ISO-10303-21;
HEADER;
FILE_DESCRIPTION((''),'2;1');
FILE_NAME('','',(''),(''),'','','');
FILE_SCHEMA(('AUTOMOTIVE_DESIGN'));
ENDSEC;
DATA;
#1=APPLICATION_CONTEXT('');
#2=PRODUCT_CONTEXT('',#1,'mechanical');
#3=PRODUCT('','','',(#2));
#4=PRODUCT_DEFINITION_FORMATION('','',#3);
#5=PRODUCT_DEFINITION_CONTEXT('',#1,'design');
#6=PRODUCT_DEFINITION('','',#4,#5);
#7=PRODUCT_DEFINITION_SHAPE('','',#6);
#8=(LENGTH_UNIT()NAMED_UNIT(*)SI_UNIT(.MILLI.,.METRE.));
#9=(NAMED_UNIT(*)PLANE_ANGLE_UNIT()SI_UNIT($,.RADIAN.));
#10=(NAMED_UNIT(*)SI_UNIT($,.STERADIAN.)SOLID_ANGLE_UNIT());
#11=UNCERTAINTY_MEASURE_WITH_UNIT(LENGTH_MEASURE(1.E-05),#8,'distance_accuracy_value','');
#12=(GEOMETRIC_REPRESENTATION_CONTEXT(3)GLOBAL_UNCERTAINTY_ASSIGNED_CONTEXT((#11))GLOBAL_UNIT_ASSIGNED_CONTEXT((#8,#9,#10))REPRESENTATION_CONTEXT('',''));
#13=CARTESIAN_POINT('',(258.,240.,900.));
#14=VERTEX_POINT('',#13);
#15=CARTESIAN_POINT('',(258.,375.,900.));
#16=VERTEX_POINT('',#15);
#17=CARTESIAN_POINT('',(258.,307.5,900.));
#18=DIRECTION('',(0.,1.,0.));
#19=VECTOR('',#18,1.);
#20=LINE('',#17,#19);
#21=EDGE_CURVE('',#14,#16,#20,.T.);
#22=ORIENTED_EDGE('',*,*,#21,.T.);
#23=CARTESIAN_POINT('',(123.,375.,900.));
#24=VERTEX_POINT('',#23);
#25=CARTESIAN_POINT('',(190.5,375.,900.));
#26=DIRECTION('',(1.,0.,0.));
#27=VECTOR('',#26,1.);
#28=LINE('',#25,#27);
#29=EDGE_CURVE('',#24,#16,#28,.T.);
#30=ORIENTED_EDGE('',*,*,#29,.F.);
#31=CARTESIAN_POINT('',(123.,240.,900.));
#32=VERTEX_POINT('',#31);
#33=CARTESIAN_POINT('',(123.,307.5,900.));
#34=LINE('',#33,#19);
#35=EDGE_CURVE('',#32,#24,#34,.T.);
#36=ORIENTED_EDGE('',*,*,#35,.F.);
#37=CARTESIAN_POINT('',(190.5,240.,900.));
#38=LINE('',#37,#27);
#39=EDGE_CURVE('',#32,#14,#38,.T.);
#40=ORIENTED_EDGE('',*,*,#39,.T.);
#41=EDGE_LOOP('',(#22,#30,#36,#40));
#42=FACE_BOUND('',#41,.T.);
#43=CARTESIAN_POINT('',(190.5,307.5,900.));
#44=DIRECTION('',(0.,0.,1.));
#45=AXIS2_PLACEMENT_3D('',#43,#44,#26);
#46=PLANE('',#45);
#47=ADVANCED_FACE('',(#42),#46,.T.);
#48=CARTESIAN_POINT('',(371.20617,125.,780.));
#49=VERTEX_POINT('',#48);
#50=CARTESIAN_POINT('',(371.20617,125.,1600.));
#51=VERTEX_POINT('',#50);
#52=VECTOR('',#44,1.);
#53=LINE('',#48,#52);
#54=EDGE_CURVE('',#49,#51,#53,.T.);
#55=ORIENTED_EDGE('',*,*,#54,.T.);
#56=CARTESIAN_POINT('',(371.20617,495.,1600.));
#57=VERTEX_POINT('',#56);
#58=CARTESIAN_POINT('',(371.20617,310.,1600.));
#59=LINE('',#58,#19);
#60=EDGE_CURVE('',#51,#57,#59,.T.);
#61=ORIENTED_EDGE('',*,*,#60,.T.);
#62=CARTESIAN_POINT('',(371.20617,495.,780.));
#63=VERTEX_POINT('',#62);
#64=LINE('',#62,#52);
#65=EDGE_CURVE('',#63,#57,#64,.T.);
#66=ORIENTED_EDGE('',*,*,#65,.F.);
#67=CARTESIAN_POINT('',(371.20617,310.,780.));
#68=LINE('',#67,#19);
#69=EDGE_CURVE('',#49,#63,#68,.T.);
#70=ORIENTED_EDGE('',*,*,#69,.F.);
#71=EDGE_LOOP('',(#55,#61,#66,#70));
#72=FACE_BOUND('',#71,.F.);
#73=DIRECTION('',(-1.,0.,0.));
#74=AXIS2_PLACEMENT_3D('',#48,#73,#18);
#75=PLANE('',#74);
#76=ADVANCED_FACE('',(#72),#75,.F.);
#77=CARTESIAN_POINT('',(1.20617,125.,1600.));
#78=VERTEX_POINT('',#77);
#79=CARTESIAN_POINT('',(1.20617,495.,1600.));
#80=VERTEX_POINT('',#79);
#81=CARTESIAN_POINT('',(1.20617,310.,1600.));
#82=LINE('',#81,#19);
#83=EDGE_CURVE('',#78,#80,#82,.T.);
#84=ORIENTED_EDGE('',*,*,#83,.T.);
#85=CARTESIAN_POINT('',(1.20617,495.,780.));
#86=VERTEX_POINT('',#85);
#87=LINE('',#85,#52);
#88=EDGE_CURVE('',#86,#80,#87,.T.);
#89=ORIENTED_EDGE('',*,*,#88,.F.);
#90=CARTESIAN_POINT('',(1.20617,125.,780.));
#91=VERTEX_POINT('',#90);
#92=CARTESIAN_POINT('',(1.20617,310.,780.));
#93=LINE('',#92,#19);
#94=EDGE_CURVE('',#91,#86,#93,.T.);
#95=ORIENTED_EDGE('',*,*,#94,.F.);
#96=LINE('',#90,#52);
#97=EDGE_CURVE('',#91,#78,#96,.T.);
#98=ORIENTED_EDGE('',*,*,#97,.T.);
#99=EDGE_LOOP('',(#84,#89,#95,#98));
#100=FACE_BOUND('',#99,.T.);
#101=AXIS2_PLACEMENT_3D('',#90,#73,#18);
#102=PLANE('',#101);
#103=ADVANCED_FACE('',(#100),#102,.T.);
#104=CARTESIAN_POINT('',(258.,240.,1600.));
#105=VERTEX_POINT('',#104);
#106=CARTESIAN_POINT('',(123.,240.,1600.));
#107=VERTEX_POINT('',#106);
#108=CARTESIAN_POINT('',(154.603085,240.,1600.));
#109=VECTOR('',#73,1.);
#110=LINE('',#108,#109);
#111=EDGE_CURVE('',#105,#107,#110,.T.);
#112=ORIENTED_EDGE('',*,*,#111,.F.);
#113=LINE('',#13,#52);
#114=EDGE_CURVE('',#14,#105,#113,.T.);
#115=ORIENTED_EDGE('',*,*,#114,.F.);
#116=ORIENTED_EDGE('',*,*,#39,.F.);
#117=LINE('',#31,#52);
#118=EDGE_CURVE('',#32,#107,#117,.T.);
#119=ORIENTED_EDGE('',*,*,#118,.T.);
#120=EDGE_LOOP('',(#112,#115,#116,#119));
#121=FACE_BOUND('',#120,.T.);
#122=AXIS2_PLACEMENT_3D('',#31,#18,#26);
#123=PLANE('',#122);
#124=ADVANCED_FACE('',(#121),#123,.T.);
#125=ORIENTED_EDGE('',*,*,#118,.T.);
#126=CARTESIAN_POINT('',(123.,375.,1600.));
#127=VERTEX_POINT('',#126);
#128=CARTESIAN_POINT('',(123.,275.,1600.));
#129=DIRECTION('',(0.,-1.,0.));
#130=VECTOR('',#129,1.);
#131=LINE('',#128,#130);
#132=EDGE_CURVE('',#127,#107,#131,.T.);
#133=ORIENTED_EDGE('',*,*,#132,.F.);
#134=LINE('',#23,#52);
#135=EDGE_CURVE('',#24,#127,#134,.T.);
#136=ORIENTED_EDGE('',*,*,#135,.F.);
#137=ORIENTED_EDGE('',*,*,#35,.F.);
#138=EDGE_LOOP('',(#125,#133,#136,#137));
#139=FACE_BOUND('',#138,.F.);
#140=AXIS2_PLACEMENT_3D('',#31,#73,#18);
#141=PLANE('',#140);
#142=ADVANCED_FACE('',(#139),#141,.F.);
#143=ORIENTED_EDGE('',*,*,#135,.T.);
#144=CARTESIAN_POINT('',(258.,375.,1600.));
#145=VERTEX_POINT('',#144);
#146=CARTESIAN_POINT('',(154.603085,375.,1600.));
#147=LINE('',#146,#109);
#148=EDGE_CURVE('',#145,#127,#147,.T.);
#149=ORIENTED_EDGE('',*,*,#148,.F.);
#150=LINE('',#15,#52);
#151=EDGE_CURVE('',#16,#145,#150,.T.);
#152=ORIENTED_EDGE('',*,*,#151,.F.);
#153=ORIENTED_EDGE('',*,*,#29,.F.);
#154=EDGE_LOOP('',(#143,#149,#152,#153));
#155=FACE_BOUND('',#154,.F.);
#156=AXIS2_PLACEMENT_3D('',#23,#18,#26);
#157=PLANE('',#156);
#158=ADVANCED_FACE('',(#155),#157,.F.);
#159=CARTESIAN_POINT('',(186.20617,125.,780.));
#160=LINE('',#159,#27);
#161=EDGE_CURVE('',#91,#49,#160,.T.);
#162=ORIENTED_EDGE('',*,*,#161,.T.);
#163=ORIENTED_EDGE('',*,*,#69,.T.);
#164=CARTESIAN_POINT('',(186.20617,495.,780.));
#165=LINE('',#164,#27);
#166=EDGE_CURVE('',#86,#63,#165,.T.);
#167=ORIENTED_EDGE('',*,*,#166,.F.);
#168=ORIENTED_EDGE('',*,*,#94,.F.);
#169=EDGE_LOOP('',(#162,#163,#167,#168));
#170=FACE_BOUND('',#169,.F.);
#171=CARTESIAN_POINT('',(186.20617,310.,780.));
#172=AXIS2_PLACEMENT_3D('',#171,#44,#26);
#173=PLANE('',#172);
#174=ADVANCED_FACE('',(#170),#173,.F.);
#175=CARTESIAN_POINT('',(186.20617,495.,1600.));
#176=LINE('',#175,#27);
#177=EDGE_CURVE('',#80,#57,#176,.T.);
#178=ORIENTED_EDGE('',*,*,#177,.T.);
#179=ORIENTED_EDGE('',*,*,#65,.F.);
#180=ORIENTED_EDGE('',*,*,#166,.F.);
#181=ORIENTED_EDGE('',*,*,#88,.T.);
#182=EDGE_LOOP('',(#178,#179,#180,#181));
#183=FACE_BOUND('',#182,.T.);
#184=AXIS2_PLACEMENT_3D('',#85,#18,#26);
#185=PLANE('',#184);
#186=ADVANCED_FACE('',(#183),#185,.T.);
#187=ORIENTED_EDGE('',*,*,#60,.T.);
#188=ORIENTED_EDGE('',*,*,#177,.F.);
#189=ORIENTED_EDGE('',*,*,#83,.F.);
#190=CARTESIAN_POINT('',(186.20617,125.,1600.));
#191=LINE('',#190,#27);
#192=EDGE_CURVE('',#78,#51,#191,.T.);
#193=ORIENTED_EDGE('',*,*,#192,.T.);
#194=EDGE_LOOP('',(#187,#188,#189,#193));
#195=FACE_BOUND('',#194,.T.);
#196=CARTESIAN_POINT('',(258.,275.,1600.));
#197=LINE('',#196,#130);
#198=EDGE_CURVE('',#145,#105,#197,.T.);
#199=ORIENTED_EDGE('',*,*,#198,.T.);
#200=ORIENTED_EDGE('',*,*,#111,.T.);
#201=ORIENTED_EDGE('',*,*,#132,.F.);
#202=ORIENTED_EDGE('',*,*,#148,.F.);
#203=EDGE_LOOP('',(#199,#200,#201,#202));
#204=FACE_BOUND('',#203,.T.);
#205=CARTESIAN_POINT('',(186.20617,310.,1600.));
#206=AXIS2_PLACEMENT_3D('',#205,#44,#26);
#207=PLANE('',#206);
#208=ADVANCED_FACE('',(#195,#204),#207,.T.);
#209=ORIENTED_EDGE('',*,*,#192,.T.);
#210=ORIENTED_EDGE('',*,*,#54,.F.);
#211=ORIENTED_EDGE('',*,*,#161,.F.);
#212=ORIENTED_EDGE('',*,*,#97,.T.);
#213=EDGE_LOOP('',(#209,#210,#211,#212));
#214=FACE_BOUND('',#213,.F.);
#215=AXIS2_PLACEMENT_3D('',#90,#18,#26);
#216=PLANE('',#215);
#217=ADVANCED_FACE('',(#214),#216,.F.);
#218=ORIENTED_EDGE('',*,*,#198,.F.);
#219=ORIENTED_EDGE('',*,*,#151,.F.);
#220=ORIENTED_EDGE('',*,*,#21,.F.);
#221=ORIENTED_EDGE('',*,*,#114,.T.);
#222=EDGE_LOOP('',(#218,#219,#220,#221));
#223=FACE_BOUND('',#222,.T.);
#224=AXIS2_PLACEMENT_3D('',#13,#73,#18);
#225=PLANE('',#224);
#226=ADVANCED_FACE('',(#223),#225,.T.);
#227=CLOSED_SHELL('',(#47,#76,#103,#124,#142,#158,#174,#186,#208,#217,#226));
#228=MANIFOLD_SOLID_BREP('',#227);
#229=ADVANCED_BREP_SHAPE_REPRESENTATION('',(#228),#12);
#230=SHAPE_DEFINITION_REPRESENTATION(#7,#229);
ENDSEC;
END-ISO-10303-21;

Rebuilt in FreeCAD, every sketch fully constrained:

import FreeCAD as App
import Part
import Sketcher

V = App.Vector
Q = App.Units.Quantity

doc = App.newDocument("Part")
params = doc.addObject("Spreadsheet::Sheet", "Params")
for row, (alias, value) in enumerate([
    ("sketch1_width", "135 mm"),
    ("pad1_length", "1000 mm"),
    ("sketch2_width", "370 mm"),
    ("pad2_length", "820 mm"),
], start=1):
    params.set(f"A{row}", alias)
    params.set(f"B{row}", "=" + value)
    params.setAlias(f"B{row}", alias)

body = doc.addObject("PartDesign::Body", "Body")

sketch1 = body.newObject("Sketcher::SketchObject", "Sketch")
sketch1.AttachmentSupport = (doc.getObject("XY_Plane"), [""])
sketch1.MapMode = "FlatFace"
sketch1.AttachmentOffset = App.Placement(V(0, 0, 900), App.Rotation())
sketch1.addGeometry([
    Part.LineSegment(V(120, 375, 0), V(120, 240, 0)),
    Part.LineSegment(V(120, 240, 0), V(255, 240, 0)),
    Part.LineSegment(V(255, 240, 0), V(255, 375, 0)),
    Part.LineSegment(V(255, 375, 0), V(120, 375, 0)),
], False)
sketch1.addConstraint([
    Sketcher.Constraint("Coincident", 0, 2, 1, 1),
    Sketcher.Constraint("Coincident", 1, 2, 2, 1),
    Sketcher.Constraint("Coincident", 2, 2, 3, 1),
    Sketcher.Constraint("Coincident", 3, 2, 0, 1),
    Sketcher.Constraint("Vertical", 0),
    Sketcher.Constraint("Horizontal", 1),
    Sketcher.Constraint("Vertical", 2),
    Sketcher.Constraint("Horizontal", 3),
    Sketcher.Constraint("Equal", 3, 0),
    Sketcher.Constraint("DistanceX", 1, 1, 1, 2, Q("135 mm")),
    Sketcher.Constraint("DistanceX", -1, 1, 0, 2, Q("120 mm")),
    Sketcher.Constraint("DistanceY", -1, 1, 0, 2, Q("240 mm")),
])
sketch1.setExpression("Constraints[9]", "Params.sketch1_width")
pad1 = body.newObject("PartDesign::Pad", "Pad")
pad1.Profile = sketch1
pad1.setExpression("Length", "Params.pad1_length")
body2 = doc.addObject("PartDesign::Body", "Body001")

sketch2 = body2.newObject("Sketcher::SketchObject", "Sketch001")
sketch2.AttachmentSupport = (doc.getObject("XY_Plane001"), [""])
sketch2.MapMode = "FlatFace"
sketch2.AttachmentOffset = App.Placement(V(0, 0, 780), App.Rotation())
sketch2.addGeometry([
    Part.LineSegment(V(-1.79383, 495, 0), V(-1.79383, 125, 0)),
    Part.LineSegment(V(-1.79383, 125, 0), V(368.20617, 125, 0)),
    Part.LineSegment(V(368.20617, 125, 0), V(368.20617, 495, 0)),
    Part.LineSegment(V(368.20617, 495, 0), V(-1.79383, 495, 0)),
], False)
sketch2.addConstraint([
    Sketcher.Constraint("Coincident", 0, 2, 1, 1),
    Sketcher.Constraint("Coincident", 1, 2, 2, 1),
    Sketcher.Constraint("Coincident", 2, 2, 3, 1),
    Sketcher.Constraint("Coincident", 3, 2, 0, 1),
    Sketcher.Constraint("Vertical", 0),
    Sketcher.Constraint("Horizontal", 1),
    Sketcher.Constraint("Vertical", 2),
    Sketcher.Constraint("Horizontal", 3),
    Sketcher.Constraint("Equal", 3, 0),
    Sketcher.Constraint("DistanceX", 1, 1, 1, 2, Q("370 mm")),
    Sketcher.Constraint("DistanceY", -1, 1, 0, 2, Q("125 mm")),
    Sketcher.Constraint("DistanceX", 0, 2, -1, 1, Q("1.79383 mm")),
])
sketch2.setExpression("Constraints[9]", "Params.sketch2_width")
pad2 = body2.newObject("PartDesign::Pad", "Pad001")
pad2.Profile = sketch2
pad2.setExpression("Length", "Params.pad2_length")
doc.recompute()

boolean = body2.newObject("PartDesign::Boolean", "Boolean")
boolean.Type = "Cut"
boolean.addObjects([body])
body3 = doc.addObject("PartDesign::Body", "Body002")
doc.recompute()

body2.Placement = App.Placement(V(3, 0, 0), App.Rotation(V(0, 0, 1), 0))
boolean2 = body3.newObject("PartDesign::Boolean", "Boolean001")
boolean2.Type = "Fuse"
boolean2.addObjects([body2])

doc.recompute()
